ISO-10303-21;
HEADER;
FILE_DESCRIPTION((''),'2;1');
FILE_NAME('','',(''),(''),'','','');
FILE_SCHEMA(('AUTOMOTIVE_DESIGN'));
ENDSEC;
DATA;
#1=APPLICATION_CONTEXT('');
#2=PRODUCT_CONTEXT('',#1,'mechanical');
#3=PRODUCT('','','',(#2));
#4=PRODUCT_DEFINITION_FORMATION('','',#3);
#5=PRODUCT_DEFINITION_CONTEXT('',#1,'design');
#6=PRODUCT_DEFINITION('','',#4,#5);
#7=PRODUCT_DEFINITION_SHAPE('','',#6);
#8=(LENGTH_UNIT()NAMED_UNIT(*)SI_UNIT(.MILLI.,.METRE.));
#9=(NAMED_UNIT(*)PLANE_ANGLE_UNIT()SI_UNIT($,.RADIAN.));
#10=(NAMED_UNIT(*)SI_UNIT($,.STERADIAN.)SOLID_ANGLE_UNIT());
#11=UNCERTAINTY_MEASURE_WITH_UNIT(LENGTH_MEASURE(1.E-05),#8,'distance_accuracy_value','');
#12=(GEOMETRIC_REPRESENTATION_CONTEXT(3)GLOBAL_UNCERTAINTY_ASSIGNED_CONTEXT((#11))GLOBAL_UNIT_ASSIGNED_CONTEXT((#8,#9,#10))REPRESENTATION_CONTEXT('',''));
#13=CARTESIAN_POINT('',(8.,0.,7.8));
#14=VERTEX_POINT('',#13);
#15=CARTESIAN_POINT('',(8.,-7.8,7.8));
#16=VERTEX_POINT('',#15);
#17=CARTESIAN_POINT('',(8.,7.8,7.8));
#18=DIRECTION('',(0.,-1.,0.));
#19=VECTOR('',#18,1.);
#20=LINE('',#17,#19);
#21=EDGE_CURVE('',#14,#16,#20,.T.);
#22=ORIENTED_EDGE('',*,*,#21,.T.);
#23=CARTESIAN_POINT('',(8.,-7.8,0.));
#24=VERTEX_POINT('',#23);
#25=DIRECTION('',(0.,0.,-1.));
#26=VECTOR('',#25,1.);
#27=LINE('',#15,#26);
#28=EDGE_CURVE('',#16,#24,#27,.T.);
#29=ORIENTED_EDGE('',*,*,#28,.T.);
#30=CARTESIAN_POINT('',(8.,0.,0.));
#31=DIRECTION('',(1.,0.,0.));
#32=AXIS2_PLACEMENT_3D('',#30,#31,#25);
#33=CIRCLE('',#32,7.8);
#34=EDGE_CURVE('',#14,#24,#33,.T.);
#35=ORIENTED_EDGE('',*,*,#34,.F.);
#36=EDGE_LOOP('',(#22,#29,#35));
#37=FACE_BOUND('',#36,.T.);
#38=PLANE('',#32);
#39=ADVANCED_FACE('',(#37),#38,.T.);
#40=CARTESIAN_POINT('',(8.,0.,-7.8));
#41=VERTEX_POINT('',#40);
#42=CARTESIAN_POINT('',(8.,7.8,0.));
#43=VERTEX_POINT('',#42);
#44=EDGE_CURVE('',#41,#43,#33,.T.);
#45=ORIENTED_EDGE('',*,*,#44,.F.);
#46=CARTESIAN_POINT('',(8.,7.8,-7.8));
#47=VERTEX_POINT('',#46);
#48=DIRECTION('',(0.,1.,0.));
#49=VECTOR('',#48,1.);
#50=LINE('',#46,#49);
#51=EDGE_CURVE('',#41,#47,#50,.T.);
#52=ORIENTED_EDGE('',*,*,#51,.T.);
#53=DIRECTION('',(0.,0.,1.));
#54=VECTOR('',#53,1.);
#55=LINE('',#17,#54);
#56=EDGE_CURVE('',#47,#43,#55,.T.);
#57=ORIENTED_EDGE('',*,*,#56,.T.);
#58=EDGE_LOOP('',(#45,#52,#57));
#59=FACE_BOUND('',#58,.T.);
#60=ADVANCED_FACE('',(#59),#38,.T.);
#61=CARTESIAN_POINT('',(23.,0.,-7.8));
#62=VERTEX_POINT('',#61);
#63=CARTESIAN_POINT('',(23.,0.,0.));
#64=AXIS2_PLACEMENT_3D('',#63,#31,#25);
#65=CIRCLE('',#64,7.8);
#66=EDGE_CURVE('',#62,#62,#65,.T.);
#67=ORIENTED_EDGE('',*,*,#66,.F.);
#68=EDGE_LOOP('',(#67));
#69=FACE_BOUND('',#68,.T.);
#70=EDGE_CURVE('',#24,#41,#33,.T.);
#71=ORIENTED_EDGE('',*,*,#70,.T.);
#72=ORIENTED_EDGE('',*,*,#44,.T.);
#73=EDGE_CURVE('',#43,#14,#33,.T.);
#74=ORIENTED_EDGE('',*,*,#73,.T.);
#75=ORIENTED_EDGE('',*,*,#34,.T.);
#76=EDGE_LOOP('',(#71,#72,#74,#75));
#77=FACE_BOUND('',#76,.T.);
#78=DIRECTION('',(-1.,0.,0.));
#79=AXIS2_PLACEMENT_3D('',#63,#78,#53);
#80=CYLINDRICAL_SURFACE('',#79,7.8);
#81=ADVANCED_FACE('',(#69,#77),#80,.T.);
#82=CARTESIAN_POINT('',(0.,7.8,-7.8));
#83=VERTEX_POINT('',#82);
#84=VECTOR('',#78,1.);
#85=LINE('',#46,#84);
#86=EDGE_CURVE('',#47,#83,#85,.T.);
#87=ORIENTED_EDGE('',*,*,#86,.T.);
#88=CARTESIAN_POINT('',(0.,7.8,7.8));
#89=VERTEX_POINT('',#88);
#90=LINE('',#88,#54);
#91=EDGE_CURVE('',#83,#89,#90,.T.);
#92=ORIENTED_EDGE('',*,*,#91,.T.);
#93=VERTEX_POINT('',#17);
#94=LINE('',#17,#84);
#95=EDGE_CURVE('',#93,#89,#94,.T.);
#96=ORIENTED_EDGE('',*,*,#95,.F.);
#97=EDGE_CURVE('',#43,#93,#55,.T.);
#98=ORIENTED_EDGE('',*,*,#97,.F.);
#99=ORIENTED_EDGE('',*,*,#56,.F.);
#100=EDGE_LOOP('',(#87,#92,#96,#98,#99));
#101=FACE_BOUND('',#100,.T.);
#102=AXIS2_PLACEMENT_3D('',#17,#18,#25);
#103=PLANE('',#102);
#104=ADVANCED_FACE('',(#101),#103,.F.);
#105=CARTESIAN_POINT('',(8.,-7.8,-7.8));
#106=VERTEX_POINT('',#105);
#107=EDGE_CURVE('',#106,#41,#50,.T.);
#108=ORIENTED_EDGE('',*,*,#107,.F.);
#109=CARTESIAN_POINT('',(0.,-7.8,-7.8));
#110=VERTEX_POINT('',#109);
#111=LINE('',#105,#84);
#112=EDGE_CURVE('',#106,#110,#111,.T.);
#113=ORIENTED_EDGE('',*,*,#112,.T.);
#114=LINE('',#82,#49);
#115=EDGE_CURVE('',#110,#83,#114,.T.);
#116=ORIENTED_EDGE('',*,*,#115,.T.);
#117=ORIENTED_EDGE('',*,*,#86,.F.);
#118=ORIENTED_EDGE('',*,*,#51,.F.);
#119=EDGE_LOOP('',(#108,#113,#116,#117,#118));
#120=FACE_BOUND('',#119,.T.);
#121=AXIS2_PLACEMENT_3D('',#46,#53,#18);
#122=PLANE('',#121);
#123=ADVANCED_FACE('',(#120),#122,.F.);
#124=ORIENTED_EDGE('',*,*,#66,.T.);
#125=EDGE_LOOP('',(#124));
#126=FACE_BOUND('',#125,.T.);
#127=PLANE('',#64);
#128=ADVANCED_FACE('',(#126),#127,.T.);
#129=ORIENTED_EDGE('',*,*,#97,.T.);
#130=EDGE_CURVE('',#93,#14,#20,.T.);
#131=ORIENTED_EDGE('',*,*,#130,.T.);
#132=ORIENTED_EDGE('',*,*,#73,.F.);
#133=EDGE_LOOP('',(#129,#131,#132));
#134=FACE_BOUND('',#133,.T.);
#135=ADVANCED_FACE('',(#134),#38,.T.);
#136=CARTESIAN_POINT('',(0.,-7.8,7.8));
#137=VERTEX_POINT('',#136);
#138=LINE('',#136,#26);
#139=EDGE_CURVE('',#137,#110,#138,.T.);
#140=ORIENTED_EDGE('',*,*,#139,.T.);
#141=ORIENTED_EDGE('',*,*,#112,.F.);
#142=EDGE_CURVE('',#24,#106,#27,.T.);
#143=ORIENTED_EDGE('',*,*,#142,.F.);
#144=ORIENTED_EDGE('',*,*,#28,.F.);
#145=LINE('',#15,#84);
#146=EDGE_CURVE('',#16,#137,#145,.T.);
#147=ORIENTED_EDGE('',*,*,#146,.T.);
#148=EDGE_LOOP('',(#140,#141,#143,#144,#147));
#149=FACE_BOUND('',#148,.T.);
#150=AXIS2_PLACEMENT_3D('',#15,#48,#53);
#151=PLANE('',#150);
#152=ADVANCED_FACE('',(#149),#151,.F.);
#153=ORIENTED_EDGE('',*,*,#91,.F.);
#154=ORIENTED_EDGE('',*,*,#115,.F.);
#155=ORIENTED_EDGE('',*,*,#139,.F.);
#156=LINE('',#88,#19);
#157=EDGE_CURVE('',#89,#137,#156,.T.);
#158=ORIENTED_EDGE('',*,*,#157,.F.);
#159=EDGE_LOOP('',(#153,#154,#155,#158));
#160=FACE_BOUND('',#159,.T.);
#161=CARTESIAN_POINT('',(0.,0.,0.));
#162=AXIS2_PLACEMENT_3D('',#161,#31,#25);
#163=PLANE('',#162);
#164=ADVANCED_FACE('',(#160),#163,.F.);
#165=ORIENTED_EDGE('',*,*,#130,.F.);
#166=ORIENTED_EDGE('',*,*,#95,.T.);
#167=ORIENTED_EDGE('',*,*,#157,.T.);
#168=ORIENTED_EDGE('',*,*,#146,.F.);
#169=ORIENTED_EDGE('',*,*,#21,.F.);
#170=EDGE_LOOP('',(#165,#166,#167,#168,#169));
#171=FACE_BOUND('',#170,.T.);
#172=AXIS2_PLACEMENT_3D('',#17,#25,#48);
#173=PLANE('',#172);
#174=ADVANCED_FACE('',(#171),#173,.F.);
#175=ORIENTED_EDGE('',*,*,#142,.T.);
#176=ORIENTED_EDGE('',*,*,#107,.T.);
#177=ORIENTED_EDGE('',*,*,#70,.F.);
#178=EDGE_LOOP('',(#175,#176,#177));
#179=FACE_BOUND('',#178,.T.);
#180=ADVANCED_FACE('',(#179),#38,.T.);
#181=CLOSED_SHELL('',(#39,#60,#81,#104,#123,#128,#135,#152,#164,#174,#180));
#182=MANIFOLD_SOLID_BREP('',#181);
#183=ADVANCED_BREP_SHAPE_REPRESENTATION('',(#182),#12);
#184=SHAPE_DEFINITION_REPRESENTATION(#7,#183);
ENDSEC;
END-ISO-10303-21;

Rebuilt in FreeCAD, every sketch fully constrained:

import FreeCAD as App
import Part
import Sketcher

V = App.Vector
Q = App.Units.Quantity


def add_polygon(sketch, points):
    """Adds a closed chain of lines whose ends are joined by coincident constraints."""
    first, n = sketch.GeometryCount, len(points)
    for a, b in zip(points, points[1:] + points[:1]):
        sketch.addGeometry(Part.LineSegment(App.Vector(*a, 0), App.Vector(*b, 0)), False)
    for i in range(n):
        sketch.addConstraint(Sketcher.Constraint("Coincident", first + i, 2, first + (i + 1) % n, 1))

doc = App.newDocument("Part")
body = doc.addObject("PartDesign::Body", "Body")

# Sketch on YZ plane
sketch1 = doc.addObject("Sketcher::SketchObject", "Sketch")
body.addObject(sketch1)
sketch1.AttachmentSupport = (doc.YZ_Plane, [""])
sketch1.MapMode = "FlatFace"
add_polygon(sketch1, [(7.8, 7.8), (-7.8, 7.8), (-7.8, -7.8), (7.8, -7.8)])  # lines 0-3
sketch1.addConstraint(Sketcher.Constraint("Horizontal", 0))
sketch1.addConstraint(Sketcher.Constraint("Vertical", 1))
sketch1.addConstraint(Sketcher.Constraint("Horizontal", 2))
sketch1.addConstraint(Sketcher.Constraint("Vertical", 3))
sketch1.addConstraint(Sketcher.Constraint("Symmetric", 0, 2, 2, 2, -1, 1))
sketch1.addConstraint(Sketcher.Constraint("Equal", 2, 1))
sketch1.addConstraint(Sketcher.Constraint("DistanceX", 0, 2, 0, 1, Q("15.6 mm")))
pad1 = doc.addObject("PartDesign::Pad", "Pad")
body.addObject(pad1)
pad1.Profile = sketch1
pad1.Length = 8

# Sketch on YZ plane
sketch2 = doc.addObject("Sketcher::SketchObject", "Sketch001")
body.addObject(sketch2)
sketch2.AttachmentSupport = (doc.YZ_Plane, [""])
sketch2.MapMode = "FlatFace"
sketch2.AttachmentOffset = App.Placement(V(0, 0, 8), App.Rotation())
sketch2.addGeometry(Part.Circle(V(0, 0, 0), V(0, 0, 1), 7.8), False)
sketch2.addConstraint(Sketcher.Constraint("Coincident", 0, 3, -1, 1))
sketch2.addConstraint(Sketcher.Constraint("Diameter", 0, Q("15.6 mm")))
pad2 = doc.addObject("PartDesign::Pad", "Pad001")
body.addObject(pad2)
pad2.Profile = sketch2
pad2.Length = 15

doc.recompute()
